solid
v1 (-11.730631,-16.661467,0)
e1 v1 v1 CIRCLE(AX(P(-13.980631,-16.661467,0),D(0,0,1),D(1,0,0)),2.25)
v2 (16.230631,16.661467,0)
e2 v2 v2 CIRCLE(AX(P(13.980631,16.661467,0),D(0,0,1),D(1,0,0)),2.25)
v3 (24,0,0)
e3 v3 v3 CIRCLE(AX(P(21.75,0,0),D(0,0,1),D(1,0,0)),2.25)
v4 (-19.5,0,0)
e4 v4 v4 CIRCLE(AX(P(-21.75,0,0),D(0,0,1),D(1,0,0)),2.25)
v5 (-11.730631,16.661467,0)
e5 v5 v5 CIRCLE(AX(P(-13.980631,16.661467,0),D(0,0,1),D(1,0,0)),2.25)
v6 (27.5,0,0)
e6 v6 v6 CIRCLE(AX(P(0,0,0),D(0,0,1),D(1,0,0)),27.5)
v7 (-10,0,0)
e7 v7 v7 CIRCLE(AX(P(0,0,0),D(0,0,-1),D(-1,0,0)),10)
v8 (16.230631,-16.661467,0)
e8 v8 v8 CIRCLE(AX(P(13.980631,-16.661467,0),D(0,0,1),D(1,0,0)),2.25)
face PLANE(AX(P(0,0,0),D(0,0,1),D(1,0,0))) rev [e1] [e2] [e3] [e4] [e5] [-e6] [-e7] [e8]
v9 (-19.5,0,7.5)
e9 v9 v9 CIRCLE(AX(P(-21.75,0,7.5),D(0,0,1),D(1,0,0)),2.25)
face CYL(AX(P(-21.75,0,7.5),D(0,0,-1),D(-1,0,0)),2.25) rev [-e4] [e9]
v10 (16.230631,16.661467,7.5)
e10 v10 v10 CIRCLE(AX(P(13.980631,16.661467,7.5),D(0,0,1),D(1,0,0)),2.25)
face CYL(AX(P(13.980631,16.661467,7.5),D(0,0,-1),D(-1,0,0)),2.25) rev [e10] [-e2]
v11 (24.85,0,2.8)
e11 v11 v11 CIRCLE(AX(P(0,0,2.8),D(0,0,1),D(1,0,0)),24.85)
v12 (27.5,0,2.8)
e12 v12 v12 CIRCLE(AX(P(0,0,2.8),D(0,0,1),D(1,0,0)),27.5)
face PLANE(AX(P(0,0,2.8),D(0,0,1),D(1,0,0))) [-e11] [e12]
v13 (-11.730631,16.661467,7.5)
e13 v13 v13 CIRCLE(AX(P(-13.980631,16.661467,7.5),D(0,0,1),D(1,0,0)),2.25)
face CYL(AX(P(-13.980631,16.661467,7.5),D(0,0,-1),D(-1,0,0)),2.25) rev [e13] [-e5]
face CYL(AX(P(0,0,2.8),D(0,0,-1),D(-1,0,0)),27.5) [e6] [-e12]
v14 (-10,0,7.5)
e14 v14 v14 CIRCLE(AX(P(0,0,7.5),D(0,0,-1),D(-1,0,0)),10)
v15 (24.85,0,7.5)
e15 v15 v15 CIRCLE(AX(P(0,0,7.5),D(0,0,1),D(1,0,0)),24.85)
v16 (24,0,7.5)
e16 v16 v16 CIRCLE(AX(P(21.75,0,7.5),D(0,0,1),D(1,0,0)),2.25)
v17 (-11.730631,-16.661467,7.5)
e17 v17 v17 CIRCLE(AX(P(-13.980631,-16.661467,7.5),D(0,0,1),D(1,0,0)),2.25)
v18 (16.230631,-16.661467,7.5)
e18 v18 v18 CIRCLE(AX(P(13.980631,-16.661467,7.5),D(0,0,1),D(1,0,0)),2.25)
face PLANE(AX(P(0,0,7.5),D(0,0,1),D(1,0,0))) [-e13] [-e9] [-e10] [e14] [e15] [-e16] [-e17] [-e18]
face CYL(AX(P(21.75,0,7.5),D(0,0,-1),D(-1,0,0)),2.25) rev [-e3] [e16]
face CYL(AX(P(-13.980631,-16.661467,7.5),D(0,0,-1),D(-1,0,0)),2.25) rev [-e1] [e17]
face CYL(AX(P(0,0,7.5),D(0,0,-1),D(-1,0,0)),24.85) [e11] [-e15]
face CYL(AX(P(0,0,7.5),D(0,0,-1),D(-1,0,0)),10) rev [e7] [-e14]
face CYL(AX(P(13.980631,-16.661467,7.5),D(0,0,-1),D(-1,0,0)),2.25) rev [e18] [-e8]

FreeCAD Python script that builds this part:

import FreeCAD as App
import Part
import Sketcher
from FreeCAD import Vector

doc = App.newDocument("Part")
body = doc.addObject("PartDesign::Body", "Body")

# Sketch on XY plane
sketch1 = doc.addObject("Sketcher::SketchObject", "Sketch")
body.addObject(sketch1)
sketch1.AttachmentSupport = (doc.XY_Plane, [""])
sketch1.MapMode = "FlatFace"
sketch1.addGeometry(Part.Circle(Vector(0, 0, 0), Vector(0, 0, 1), 24.9), False)
sketch1.addGeometry(Part.Circle(Vector(-14, -16.7, 0), Vector(0, 0, 1), 2.2), False)
sketch1.addGeometry(Part.Circle(Vector(14, -16.7, 0), Vector(0, 0, 1), 2.2), False)
sketch1.addGeometry(Part.Circle(Vector(-21.8, 0, 0), Vector(0, 0, 1), 2.2), False)
sketch1.addGeometry(Part.Circle(Vector(-14, 16.7, 0), Vector(0, 0, 1), 2.2), False)
sketch1.addGeometry(Part.Circle(Vector(21.8, 0, 0), Vector(0, 0, 1), 2.2), False)
sketch1.addGeometry(Part.Circle(Vector(14, 16.7, 0), Vector(0, 0, 1), 2.2), False)
sketch1.addConstraint(Sketcher.Constraint("Coincident", 0, 3, -1, 1))
sketch1.addConstraint(Sketcher.Constraint("Equal", 1, 2))
sketch1.addConstraint(Sketcher.Constraint("Equal", 2, 3))
sketch1.addConstraint(Sketcher.Constraint("Equal", 3, 4))
sketch1.addConstraint(Sketcher.Constraint("Equal", 4, 5))
sketch1.addConstraint(Sketcher.Constraint("Equal", 5, 6))
sketch1.addConstraint(Sketcher.Constraint("Symmetric", 2, 3, 4, 3, -1, 1))
sketch1.addConstraint(Sketcher.Constraint("Symmetric", 3, 3, 5, 3, -1, 1))
sketch1.addConstraint(Sketcher.Constraint("Symmetric", 1, 3, 6, 3, -1, 1))
sketch1.addConstraint(Sketcher.Constraint("Symmetric", 1, 3, 2, 3, -2))
sketch1.addConstraint(Sketcher.Constraint("PointOnObject", 3, 3, -1))
sketch1.addConstraint(Sketcher.Constraint("Diameter", 0, 49.7))
sketch1.addConstraint(Sketcher.Constraint("Diameter", 1, 4.5))
sketch1.addConstraint(Sketcher.Constraint("DistanceX", 3, 3, 5, 3, 43.5))
sketch1.addConstraint(Sketcher.Constraint("DistanceX", 1, 3, -1, 1, 13.980631))
sketch1.addConstraint(Sketcher.Constraint("DistanceY", 1, 3, -1, 1, 16.661467))
pad1 = doc.addObject("PartDesign::Pad", "Pad")
body.addObject(pad1)
pad1.Profile = sketch1
pad1.Length = 7.5

# Sketch on XY plane
sketch2 = doc.addObject("Sketcher::SketchObject", "Sketch001")
body.addObject(sketch2)
sketch2.AttachmentSupport = (doc.XY_Plane, [""])
sketch2.MapMode = "FlatFace"
sketch2.addGeometry(Part.Circle(Vector(0, 0, 0), Vector(0, 0, 1), 28), False)
sketch2.addGeometry(Part.Circle(Vector(0, 0, 0), Vector(0, 0, 1), 25), False)
sketch2.addConstraint(Sketcher.Constraint("Coincident", 0, 3, -1, 1))
sketch2.addConstraint(Sketcher.Constraint("Coincident", 1, 3, -1, 1))
sketch2.addConstraint(Sketcher.Constraint("Diameter", 0, 55.0))
sketch2.addConstraint(Sketcher.Constraint("Diameter", 1, 49.7))
pad2 = doc.addObject("PartDesign::Pad", "Pad001")
body.addObject(pad2)
pad2.Profile = sketch2
pad2.Length = 2.8

# Sketch on XY plane
sketch3 = doc.addObject("Sketcher::SketchObject", "Sketch002")
body.addObject(sketch3)
sketch3.AttachmentSupport = (doc.XY_Plane, [""])
sketch3.MapMode = "FlatFace"
sketch3.addGeometry(Part.Circle(Vector(0, 0, 0), Vector(0, 0, 1), 10), False)
sketch3.addConstraint(Sketcher.Constraint("Coincident", 0, 3, -1, 1))
sketch3.addConstraint(Sketcher.Constraint("Diameter", 0, 20.0))
pocket1 = doc.addObject("PartDesign::Pocket", "Pocket")
body.addObject(pocket1)
pocket1.Profile = sketch3
pocket1.Type = "ThroughAll"
pocket1.Reversed = True

doc.recompute()
